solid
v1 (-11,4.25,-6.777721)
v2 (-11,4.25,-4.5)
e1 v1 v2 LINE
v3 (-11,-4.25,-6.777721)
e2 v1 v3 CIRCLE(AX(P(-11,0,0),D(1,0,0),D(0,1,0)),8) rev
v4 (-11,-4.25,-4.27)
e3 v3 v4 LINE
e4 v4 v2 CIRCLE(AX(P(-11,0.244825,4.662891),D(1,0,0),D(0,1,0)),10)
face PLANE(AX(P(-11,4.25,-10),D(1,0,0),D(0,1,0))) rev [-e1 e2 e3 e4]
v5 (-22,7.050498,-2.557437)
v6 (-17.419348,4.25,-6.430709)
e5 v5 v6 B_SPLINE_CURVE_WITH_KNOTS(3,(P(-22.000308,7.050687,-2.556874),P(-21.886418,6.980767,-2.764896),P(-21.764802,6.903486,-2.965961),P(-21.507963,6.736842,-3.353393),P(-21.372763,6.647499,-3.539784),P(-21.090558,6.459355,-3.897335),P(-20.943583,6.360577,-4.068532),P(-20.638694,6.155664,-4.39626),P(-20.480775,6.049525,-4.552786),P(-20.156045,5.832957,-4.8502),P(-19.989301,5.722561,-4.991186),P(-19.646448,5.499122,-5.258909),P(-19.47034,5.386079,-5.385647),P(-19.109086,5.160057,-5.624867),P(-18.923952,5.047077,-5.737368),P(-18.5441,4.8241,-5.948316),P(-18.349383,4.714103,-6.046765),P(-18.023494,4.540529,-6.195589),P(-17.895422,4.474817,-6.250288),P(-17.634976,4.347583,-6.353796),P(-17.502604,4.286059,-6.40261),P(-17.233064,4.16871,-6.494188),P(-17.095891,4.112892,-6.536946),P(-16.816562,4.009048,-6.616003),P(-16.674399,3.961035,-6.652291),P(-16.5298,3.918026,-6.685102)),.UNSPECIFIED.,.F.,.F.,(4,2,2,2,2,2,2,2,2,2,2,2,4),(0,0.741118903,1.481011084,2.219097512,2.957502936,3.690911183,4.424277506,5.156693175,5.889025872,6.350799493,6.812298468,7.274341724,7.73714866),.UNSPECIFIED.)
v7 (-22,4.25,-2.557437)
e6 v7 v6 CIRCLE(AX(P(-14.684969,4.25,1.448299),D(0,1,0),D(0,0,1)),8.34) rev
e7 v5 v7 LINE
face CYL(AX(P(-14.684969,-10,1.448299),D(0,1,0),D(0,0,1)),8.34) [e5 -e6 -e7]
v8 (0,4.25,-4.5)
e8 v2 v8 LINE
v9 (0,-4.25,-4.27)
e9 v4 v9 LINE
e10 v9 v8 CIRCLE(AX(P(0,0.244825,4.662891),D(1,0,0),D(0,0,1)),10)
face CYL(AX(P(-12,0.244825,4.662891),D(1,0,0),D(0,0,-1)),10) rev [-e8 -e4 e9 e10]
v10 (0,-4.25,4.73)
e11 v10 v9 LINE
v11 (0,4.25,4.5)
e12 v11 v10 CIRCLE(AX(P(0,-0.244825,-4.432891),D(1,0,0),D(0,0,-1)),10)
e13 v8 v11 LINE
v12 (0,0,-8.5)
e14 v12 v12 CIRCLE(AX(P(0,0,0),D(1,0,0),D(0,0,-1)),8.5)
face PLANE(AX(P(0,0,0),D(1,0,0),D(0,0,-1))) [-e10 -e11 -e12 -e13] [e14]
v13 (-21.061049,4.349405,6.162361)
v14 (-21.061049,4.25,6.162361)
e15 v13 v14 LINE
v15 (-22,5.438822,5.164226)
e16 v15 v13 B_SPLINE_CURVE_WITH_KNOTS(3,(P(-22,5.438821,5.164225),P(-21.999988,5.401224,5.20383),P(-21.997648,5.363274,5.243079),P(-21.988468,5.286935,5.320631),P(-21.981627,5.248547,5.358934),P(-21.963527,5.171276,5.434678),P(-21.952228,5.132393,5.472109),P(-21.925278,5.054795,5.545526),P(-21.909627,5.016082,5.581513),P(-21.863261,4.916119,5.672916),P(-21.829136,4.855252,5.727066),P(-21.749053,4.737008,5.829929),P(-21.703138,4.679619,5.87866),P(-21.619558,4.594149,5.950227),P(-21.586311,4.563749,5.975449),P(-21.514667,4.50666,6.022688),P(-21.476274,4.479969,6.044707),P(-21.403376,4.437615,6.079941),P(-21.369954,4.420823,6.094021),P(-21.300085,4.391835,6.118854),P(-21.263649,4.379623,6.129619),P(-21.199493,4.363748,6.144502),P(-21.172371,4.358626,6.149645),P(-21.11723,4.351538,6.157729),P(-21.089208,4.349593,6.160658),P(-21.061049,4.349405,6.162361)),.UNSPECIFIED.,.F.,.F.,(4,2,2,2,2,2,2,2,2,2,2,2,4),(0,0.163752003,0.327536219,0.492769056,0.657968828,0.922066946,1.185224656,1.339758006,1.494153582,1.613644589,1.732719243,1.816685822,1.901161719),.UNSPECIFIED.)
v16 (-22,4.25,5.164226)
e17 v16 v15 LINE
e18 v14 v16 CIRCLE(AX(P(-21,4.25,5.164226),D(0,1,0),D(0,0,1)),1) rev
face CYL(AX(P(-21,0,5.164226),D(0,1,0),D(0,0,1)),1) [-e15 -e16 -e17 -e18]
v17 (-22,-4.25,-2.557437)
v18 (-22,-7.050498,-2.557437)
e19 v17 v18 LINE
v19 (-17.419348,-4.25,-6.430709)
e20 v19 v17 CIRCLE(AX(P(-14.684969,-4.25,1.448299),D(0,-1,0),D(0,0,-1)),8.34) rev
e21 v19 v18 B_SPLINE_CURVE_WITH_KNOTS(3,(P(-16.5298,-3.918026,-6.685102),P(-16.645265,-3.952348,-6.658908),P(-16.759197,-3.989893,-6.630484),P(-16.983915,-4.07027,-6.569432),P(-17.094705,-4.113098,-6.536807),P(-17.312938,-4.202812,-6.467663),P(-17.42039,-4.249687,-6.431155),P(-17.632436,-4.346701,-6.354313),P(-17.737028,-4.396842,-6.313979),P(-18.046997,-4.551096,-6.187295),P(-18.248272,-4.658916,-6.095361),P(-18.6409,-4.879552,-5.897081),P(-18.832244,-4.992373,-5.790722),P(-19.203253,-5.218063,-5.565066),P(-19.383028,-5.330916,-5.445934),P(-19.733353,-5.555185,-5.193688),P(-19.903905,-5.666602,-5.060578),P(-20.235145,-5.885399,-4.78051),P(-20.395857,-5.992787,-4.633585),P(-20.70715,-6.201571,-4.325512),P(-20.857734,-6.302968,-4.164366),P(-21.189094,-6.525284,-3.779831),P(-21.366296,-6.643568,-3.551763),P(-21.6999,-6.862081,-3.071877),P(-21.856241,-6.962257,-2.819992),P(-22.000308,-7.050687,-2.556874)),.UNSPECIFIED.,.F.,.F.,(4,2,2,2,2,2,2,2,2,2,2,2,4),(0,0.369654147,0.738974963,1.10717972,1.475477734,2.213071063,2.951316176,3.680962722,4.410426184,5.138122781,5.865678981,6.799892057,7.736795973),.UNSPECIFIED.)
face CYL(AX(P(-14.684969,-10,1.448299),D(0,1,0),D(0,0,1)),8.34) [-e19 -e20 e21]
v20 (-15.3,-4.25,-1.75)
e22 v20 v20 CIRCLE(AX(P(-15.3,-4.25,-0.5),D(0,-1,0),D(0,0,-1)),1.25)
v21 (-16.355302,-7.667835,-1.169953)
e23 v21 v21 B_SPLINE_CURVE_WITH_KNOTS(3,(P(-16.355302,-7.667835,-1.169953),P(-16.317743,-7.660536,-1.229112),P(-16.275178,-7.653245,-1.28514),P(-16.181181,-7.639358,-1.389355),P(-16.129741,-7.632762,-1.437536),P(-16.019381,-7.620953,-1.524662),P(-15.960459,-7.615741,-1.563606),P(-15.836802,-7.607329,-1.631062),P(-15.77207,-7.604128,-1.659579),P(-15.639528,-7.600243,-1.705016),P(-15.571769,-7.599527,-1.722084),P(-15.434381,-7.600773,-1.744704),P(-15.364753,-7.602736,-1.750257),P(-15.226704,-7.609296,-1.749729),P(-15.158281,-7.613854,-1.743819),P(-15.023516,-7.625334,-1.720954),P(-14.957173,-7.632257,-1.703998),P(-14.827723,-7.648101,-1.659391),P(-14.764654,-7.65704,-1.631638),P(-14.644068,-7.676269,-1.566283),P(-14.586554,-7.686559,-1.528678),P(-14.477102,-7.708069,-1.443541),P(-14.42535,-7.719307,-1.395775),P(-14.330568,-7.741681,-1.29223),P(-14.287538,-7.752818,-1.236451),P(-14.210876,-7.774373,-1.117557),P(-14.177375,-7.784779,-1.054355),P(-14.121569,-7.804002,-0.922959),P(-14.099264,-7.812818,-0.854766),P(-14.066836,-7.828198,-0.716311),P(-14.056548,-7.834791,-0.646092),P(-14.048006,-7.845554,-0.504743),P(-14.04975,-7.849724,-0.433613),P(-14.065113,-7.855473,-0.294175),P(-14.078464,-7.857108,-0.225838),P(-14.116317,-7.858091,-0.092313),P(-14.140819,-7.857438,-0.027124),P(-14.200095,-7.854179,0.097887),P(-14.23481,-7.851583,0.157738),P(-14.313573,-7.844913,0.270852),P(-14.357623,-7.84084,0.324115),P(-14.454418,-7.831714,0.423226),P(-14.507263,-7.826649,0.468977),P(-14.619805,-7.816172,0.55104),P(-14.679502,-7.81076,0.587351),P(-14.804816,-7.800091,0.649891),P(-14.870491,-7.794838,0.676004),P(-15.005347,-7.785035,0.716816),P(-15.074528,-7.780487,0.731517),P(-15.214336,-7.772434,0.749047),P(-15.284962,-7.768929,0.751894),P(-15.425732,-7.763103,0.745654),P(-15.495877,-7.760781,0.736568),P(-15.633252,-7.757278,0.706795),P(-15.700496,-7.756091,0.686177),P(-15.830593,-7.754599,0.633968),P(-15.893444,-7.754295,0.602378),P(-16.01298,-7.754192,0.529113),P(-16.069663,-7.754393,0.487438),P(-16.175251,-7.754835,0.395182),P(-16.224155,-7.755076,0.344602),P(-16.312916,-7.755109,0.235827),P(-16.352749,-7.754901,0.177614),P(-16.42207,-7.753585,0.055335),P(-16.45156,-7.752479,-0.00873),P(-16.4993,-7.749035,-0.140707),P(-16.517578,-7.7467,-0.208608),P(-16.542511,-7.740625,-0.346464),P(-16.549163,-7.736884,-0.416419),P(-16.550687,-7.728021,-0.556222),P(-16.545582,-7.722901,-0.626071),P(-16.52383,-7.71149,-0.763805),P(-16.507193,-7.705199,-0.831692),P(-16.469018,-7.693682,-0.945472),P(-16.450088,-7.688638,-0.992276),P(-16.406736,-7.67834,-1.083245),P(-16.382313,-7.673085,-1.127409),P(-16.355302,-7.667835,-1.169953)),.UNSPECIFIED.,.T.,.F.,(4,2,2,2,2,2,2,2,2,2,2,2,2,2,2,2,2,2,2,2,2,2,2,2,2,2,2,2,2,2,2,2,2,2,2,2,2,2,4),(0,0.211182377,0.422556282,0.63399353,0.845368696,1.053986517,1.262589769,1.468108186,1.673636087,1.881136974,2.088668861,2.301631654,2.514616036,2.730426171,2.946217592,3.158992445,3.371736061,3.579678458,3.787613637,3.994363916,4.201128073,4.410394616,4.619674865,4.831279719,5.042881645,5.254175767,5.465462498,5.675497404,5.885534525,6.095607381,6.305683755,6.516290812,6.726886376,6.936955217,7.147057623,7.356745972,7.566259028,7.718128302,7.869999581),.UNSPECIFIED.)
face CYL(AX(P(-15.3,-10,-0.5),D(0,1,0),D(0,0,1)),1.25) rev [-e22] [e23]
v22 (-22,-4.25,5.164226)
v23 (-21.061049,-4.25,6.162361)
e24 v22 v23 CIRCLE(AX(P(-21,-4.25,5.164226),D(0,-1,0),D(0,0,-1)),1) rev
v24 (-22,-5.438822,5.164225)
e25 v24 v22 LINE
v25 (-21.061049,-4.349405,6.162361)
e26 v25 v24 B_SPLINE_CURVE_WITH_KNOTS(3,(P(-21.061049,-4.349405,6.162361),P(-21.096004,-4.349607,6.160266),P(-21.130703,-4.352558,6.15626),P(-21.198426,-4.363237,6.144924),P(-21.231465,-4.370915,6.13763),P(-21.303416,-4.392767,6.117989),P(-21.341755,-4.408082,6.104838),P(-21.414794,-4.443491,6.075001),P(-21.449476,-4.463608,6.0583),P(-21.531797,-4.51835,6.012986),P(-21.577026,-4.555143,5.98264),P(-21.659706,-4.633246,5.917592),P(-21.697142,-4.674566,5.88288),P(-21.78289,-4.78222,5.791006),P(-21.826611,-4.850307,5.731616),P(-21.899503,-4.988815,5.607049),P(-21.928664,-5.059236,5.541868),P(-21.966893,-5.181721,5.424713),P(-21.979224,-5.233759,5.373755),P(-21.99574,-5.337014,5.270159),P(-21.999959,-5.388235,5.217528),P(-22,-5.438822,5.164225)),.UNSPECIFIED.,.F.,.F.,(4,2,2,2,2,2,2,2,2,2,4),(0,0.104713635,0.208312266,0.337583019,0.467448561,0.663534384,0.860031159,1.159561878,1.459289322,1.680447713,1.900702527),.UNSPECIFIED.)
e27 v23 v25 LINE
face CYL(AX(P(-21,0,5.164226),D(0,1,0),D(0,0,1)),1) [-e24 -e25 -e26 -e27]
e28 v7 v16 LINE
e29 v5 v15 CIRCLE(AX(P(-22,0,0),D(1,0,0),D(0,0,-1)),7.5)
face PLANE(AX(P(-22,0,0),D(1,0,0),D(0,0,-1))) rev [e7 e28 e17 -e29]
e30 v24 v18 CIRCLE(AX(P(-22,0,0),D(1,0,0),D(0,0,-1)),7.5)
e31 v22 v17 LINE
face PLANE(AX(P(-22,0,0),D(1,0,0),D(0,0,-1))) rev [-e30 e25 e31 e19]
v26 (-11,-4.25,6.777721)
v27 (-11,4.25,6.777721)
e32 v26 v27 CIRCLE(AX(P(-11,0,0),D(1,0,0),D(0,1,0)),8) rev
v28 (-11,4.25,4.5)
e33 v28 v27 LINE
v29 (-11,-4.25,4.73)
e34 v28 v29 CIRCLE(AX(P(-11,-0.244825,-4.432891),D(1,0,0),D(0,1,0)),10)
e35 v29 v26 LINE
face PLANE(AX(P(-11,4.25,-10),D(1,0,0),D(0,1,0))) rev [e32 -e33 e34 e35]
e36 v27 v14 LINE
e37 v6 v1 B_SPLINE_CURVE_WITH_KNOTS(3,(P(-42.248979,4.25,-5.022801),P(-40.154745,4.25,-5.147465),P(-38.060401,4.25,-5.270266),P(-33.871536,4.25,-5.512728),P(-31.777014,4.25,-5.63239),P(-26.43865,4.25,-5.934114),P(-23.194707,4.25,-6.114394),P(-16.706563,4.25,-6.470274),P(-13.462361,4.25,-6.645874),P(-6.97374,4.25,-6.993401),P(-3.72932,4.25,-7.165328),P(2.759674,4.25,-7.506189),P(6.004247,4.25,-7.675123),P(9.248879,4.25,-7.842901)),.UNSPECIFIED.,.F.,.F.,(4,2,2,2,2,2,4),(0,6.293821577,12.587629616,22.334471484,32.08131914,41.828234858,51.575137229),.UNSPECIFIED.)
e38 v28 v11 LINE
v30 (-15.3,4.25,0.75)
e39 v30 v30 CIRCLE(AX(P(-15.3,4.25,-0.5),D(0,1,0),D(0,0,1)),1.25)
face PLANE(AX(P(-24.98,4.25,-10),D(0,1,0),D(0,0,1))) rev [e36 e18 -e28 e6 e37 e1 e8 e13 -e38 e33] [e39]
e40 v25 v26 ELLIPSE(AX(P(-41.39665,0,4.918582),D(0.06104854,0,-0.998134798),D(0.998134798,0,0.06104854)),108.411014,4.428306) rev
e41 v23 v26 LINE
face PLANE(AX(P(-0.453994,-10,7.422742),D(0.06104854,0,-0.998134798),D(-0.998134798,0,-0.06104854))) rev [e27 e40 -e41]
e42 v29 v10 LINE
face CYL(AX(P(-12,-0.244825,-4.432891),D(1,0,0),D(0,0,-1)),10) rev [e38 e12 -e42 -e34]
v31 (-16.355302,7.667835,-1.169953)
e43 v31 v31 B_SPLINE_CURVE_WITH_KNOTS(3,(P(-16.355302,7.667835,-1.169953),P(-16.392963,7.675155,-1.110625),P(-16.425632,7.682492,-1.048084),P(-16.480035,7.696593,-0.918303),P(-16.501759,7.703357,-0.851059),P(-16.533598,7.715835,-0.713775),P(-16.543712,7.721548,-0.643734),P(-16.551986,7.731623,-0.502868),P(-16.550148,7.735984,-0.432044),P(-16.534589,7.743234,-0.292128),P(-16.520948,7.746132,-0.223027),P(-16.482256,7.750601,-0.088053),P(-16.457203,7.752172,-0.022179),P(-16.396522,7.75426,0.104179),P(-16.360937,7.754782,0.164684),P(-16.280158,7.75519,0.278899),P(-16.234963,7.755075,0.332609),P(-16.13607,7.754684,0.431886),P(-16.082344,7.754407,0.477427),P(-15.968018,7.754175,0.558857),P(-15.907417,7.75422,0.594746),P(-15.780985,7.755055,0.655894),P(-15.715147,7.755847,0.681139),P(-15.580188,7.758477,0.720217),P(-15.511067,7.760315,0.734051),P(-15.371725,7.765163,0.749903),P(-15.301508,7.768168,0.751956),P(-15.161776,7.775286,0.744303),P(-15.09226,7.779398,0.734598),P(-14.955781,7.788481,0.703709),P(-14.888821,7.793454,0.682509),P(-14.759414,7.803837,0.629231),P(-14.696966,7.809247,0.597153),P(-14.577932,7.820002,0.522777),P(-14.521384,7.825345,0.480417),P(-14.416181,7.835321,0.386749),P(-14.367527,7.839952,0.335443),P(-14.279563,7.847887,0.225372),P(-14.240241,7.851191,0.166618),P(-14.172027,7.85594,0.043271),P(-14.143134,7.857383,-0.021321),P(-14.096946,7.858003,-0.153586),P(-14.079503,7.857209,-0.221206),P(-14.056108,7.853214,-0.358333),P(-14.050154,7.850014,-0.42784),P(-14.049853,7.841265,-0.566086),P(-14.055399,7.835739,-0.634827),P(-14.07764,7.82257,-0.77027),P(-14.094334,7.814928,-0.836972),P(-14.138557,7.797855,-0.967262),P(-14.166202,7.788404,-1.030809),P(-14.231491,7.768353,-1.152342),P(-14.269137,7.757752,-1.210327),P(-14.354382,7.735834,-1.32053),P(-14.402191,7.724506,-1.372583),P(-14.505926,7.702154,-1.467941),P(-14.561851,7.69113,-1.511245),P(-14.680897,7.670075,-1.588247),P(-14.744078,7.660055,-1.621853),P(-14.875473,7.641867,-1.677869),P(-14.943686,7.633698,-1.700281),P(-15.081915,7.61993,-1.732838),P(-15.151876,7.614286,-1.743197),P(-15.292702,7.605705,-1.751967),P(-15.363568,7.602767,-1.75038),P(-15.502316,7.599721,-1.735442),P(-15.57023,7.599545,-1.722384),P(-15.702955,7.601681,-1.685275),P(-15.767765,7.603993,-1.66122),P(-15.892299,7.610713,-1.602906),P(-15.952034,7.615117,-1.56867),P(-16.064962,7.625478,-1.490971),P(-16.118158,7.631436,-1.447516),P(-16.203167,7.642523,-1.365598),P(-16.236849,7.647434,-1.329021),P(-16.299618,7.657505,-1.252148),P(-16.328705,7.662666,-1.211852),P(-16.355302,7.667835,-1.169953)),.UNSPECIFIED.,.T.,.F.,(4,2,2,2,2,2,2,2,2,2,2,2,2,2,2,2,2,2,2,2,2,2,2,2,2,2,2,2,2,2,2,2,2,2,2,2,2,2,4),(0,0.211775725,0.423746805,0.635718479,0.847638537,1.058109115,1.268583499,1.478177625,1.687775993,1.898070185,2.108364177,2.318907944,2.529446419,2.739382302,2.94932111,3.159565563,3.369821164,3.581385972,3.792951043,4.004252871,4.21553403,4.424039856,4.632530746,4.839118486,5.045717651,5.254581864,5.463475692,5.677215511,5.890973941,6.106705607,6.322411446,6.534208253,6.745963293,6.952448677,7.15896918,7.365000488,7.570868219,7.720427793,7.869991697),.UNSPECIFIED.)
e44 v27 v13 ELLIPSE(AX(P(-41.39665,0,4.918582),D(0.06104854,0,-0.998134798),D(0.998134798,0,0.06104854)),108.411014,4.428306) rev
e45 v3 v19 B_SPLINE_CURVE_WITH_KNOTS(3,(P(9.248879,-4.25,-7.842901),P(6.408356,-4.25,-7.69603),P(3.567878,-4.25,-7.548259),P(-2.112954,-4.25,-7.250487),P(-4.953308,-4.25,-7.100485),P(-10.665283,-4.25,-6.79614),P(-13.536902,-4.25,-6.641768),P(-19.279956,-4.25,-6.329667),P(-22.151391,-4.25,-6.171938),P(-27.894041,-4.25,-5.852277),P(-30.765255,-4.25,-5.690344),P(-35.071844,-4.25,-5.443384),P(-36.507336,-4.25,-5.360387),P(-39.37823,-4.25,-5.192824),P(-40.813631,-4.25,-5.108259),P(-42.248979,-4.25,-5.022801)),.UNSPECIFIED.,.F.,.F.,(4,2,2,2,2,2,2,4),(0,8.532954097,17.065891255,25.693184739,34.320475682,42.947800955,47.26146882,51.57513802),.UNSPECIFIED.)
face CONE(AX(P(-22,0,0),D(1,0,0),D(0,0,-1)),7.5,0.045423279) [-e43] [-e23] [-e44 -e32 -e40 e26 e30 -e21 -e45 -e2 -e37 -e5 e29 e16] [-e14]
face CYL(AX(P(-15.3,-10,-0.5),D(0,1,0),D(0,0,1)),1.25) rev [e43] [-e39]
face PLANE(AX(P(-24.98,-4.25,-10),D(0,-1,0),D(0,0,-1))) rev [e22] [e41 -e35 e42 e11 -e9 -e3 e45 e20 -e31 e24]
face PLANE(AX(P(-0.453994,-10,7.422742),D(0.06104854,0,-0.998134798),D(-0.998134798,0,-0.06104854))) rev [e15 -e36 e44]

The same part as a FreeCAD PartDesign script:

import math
import FreeCAD as App
import Part
import Sketcher

V = App.Vector
Q = App.Units.Quantity


def edges_at(feature, points):
    """Names of the edges that pass closest to the given points."""
    edges = feature.Shape.Edges
    near = lambda p: min(range(len(edges)), key=lambda i: edges[i].distToShape(Part.Vertex(*p))[0])
    return sorted({f"Edge{near(p) + 1}" for p in points})


def add_polygon(sketch, points):
    """Adds a closed chain of lines whose ends are joined by coincident constraints."""
    first, n = sketch.GeometryCount, len(points)
    for a, b in zip(points, points[1:] + points[:1]):
        sketch.addGeometry(Part.LineSegment(App.Vector(*a, 0), App.Vector(*b, 0)), False)
    for i in range(n):
        sketch.addConstraint(Sketcher.Constraint("Coincident", first + i, 2, first + (i + 1) % n, 1))

doc = App.newDocument("Part")
body = doc.addObject("PartDesign::Body", "Body")

# Sketch on YZ plane
sketch1 = doc.addObject("Sketcher::SketchObject", "Sketch")
body.addObject(sketch1)
sketch1.AttachmentSupport = (doc.YZ_Plane, [""])
sketch1.MapMode = "FlatFace"
sketch1.addGeometry(Part.Circle(V(0, 0, 0), V(0, 0, 1), 8.5), False)
sketch1.addConstraint(Sketcher.Constraint("Coincident", 0, 3, -1, 1))
sketch1.addConstraint(Sketcher.Constraint("Diameter", 0, 17.0))

# Sketch on YZ plane
sketch2 = doc.addObject("Sketcher::SketchObject", "Sketch001")
body.addObject(sketch2)
sketch2.AttachmentSupport = (doc.YZ_Plane, [""])
sketch2.MapMode = "FlatFace"
sketch2.AttachmentOffset = App.Placement(V(0, 0, -22), App.Rotation())
sketch2.addGeometry(Part.Circle(V(0, 0, 0), V(0, 0, 1), 7.5), False)
sketch2.addConstraint(Sketcher.Constraint("Coincident", 0, 3, -1, 1))
sketch2.addConstraint(Sketcher.Constraint("Diameter", 0, 15.0))

additiveloft = doc.addObject("PartDesign::AdditiveLoft", "AdditiveLoft")
body.addObject(additiveloft)
additiveloft.Profile = sketch1
additiveloft.Sections = [sketch2]

# Sketch on XY plane
sketch3 = doc.addObject("Sketcher::SketchObject", "Sketch002")
body.addObject(sketch3)
sketch3.AttachmentSupport = (doc.XY_Plane, [""])
sketch3.MapMode = "FlatFace"
add_polygon(sketch3, [(-24.98, 4.25), (-24.98, -4.25), (-11, -4.25), (-11, 4.25)])  # lines 0-3
sketch3.addConstraint(Sketcher.Constraint("Vertical", 0))
sketch3.addConstraint(Sketcher.Constraint("Horizontal", 1))
sketch3.addConstraint(Sketcher.Constraint("Vertical", 2))
sketch3.addConstraint(Sketcher.Constraint("Horizontal", 3))
sketch3.addConstraint(Sketcher.Constraint("DistanceY", 0, 2, 0, 1, 8.5))
sketch3.addConstraint(Sketcher.Constraint("DistanceX", 1, 2, -1, 1, 11.0))
sketch3.addConstraint(Sketcher.Constraint("DistanceX", 1, 1, 1, 2, 13.98))
sketch3.addConstraint(Sketcher.Constraint("DistanceY", 0, 2, -1, 1, 4.25))
pocket1 = doc.addObject("PartDesign::Pocket", "Pocket")
body.addObject(pocket1)
pocket1.Profile = sketch3
pocket1.Length = 20
pocket1.Midplane = True

# Sketch on XZ plane
sketch4 = doc.addObject("Sketcher::SketchObject", "Sketch003")
body.addObject(sketch4)
sketch4.AttachmentSupport = (doc.XZ_Plane, [""])
sketch4.MapMode = "FlatFace"
sketch4.addGeometry(Part.LineSegment(V(-23, 6.043769, 0), V(-23.024844, 1.493837, 0)), False)
sketch4.addGeometry(Part.ArcOfCircle(Part.Circle(V(-14.684969, 1.448299, 0), V(0, 0, 1), 8.34), math.radians(179.687148), math.radians(257.218901)), False)
sketch4.addGeometry(Part.LineSegment(V(-16.53, -6.685056, 0), V(-11, -6.777721, 0)), False)
sketch4.addGeometry(Part.LineSegment(V(-11, -6.777721, 0), V(-11, -10.146747, 0)), False)
sketch4.addGeometry(Part.LineSegment(V(-11, -10.146747, 0), V(-27.92, -10.146747, 0)), False)
sketch4.addGeometry(Part.LineSegment(V(-27.92, -10.146747, 0), V(-27.92, 8.723253, 0)), False)
sketch4.addGeometry(Part.LineSegment(V(-27.92, 8.723253, 0), V(-11, 8.723253, 0)), False)
sketch4.addGeometry(Part.LineSegment(V(-11, 8.723253, 0), V(-11, 6.777721, 0)), False)
sketch4.addGeometry(Part.LineSegment(V(-11, 6.777721, 0), V(-23, 6.043769, 0)), False)
sketch4.addConstraint(Sketcher.Constraint("Tangent", 0, 2, 1, 1))
sketch4.addConstraint(Sketcher.Constraint("Coincident", 1, 2, 2, 1))
sketch4.addConstraint(Sketcher.Constraint("Coincident", 2, 2, 3, 1))
sketch4.addConstraint(Sketcher.Constraint("Coincident", 3, 2, 4, 1))
sketch4.addConstraint(Sketcher.Constraint("Coincident", 4, 2, 5, 1))
sketch4.addConstraint(Sketcher.Constraint("Coincident", 5, 2, 6, 1))
sketch4.addConstraint(Sketcher.Constraint("Coincident", 6, 2, 7, 1))
sketch4.addConstraint(Sketcher.Constraint("Coincident", 7, 2, 8, 1))
sketch4.addConstraint(Sketcher.Constraint("Coincident", 8, 2, 0, 1))
sketch4.addConstraint(Sketcher.Constraint("Vertical", 3))
sketch4.addConstraint(Sketcher.Constraint("Horizontal", 4))
sketch4.addConstraint(Sketcher.Constraint("Vertical", 5))
sketch4.addConstraint(Sketcher.Constraint("Horizontal", 6))
sketch4.addConstraint(Sketcher.Constraint("Vertical", 7))
sketch4.addConstraint(Sketcher.Constraint("Symmetric", 2, 2, 7, 2, -1))
sketch4.addConstraint(Sketcher.Constraint("Radius", 1, 8.34))
sketch4.addConstraint(Sketcher.Constraint("DistanceX", 2, 2, -1, 1, 11.0))
sketch4.addConstraint(Sketcher.Constraint("DistanceX", 8, 2, -1, 1, 23.0))
sketch4.addConstraint(Sketcher.Constraint("Angle", 8, Q("-176.5 deg")))
sketch4.addConstraint(Sketcher.Constraint("DistanceX", 4, 2, 4, 1, 16.92))
sketch4.addConstraint(Sketcher.Constraint("DistanceY", 5, 1, 5, 2, 18.87))
sketch4.addConstraint(Sketcher.Constraint("Angle", 2, Q("-0.96 deg")))
sketch4.addConstraint(Sketcher.Constraint("Distance", 0, 4.55))
sketch4.addConstraint(Sketcher.Constraint("DistanceX", 1, 2, -1, 1, 16.53))
sketch4.addConstraint(Sketcher.Constraint("DistanceY", -1, 1, 1, 3, 1.448299))
sketch4.addConstraint(Sketcher.Constraint("DistanceY", 3, 2, 3, 1, 3.369026))
pocket2 = doc.addObject("PartDesign::Pocket", "Pocket001")
body.addObject(pocket2)
pocket2.Profile = sketch4
pocket2.Length = 20
pocket2.Midplane = True

# Sketch on XZ plane
sketch5 = doc.addObject("Sketcher::SketchObject", "Sketch004")
body.addObject(sketch5)
sketch5.AttachmentSupport = (doc.XZ_Plane, [""])
sketch5.MapMode = "FlatFace"
sketch5.addGeometry(Part.Circle(V(-15.3, -0.5, 0), V(0, 0, 1), 1.25), False)
sketch5.addConstraint(Sketcher.Constraint("Diameter", 0, 2.5))
sketch5.addConstraint(Sketcher.Constraint("DistanceX", 0, 3, -1, 1, 15.3))
sketch5.addConstraint(Sketcher.Constraint("DistanceY", 0, 3, -1, 1, 0.5))
pocket3 = doc.addObject("PartDesign::Pocket", "Pocket002")
body.addObject(pocket3)
pocket3.Profile = sketch5
pocket3.Length = 20
pocket3.Midplane = True

# Sketch on YZ plane
sketch6 = doc.addObject("Sketcher::SketchObject", "Sketch005")
body.addObject(sketch6)
sketch6.AttachmentSupport = (doc.YZ_Plane, [""])
sketch6.MapMode = "FlatFace"
sketch6.addGeometry(Part.LineSegment(V(4.25, -4.5, 0), V(4.25, 4.5, 0)), False)
sketch6.addGeometry(Part.ArcOfCircle(Part.Circle(V(-0.244825, -4.432891, 0), V(0, 0, 1), 10), math.radians(63.289512), math.radians(113.610532)), False)
sketch6.addGeometry(Part.LineSegment(V(-4.25, 4.73, 0), V(-4.25, -4.27, 0)), False)
sketch6.addGeometry(Part.ArcOfCircle(Part.Circle(V(0.244825, 4.662891, 0), V(0, 0, 1), 10), math.radians(-116.710488), math.radians(-66.389468)), False)
sketch6.addConstraint(Sketcher.Constraint("Coincident", 0, 2, 1, 1))
sketch6.addConstraint(Sketcher.Constraint("Coincident", 1, 2, 2, 1))
sketch6.addConstraint(Sketcher.Constraint("Coincident", 2, 2, 3, 1))
sketch6.addConstraint(Sketcher.Constraint("Coincident", 3, 2, 0, 1))
sketch6.addConstraint(Sketcher.Constraint("Vertical", 0))
sketch6.addConstraint(Sketcher.Constraint("Vertical", 2))
sketch6.addConstraint(Sketcher.Constraint("Equal", 1, 3))
sketch6.addConstraint(Sketcher.Constraint("Equal", 0, 2))
sketch6.addConstraint(Sketcher.Constraint("Radius", 1, 10.0))
sketch6.addConstraint(Sketcher.Constraint("DistanceY", 0, 1, 0, 2, 9.0))
sketch6.addConstraint(Sketcher.Constraint("DistanceY", -1, 1, 0, 2, 4.5))
sketch6.addConstraint(Sketcher.Constraint("DistanceX", 1, 2, 0, 2, 8.5))
sketch6.addConstraint(Sketcher.Constraint("DistanceX", -1, 1, 0, 2, 4.25))
sketch6.addConstraint(Sketcher.Constraint("DistanceY", -1, 1, 1, 2, 4.73))
pocket4 = doc.addObject("PartDesign::Pocket", "Pocket003")
body.addObject(pocket4)
pocket4.Profile = sketch6
pocket4.Length = 12
doc.recompute()

fillet = doc.addObject("PartDesign::Fillet", "Fillet")
body.addObject(fillet)
fillet.Base = (pocket4, edges_at(pocket4, [(-22, -4.303, 6.105), (-22, 4.303, 6.105)]))
fillet.Radius = 1

doc.recompute()
